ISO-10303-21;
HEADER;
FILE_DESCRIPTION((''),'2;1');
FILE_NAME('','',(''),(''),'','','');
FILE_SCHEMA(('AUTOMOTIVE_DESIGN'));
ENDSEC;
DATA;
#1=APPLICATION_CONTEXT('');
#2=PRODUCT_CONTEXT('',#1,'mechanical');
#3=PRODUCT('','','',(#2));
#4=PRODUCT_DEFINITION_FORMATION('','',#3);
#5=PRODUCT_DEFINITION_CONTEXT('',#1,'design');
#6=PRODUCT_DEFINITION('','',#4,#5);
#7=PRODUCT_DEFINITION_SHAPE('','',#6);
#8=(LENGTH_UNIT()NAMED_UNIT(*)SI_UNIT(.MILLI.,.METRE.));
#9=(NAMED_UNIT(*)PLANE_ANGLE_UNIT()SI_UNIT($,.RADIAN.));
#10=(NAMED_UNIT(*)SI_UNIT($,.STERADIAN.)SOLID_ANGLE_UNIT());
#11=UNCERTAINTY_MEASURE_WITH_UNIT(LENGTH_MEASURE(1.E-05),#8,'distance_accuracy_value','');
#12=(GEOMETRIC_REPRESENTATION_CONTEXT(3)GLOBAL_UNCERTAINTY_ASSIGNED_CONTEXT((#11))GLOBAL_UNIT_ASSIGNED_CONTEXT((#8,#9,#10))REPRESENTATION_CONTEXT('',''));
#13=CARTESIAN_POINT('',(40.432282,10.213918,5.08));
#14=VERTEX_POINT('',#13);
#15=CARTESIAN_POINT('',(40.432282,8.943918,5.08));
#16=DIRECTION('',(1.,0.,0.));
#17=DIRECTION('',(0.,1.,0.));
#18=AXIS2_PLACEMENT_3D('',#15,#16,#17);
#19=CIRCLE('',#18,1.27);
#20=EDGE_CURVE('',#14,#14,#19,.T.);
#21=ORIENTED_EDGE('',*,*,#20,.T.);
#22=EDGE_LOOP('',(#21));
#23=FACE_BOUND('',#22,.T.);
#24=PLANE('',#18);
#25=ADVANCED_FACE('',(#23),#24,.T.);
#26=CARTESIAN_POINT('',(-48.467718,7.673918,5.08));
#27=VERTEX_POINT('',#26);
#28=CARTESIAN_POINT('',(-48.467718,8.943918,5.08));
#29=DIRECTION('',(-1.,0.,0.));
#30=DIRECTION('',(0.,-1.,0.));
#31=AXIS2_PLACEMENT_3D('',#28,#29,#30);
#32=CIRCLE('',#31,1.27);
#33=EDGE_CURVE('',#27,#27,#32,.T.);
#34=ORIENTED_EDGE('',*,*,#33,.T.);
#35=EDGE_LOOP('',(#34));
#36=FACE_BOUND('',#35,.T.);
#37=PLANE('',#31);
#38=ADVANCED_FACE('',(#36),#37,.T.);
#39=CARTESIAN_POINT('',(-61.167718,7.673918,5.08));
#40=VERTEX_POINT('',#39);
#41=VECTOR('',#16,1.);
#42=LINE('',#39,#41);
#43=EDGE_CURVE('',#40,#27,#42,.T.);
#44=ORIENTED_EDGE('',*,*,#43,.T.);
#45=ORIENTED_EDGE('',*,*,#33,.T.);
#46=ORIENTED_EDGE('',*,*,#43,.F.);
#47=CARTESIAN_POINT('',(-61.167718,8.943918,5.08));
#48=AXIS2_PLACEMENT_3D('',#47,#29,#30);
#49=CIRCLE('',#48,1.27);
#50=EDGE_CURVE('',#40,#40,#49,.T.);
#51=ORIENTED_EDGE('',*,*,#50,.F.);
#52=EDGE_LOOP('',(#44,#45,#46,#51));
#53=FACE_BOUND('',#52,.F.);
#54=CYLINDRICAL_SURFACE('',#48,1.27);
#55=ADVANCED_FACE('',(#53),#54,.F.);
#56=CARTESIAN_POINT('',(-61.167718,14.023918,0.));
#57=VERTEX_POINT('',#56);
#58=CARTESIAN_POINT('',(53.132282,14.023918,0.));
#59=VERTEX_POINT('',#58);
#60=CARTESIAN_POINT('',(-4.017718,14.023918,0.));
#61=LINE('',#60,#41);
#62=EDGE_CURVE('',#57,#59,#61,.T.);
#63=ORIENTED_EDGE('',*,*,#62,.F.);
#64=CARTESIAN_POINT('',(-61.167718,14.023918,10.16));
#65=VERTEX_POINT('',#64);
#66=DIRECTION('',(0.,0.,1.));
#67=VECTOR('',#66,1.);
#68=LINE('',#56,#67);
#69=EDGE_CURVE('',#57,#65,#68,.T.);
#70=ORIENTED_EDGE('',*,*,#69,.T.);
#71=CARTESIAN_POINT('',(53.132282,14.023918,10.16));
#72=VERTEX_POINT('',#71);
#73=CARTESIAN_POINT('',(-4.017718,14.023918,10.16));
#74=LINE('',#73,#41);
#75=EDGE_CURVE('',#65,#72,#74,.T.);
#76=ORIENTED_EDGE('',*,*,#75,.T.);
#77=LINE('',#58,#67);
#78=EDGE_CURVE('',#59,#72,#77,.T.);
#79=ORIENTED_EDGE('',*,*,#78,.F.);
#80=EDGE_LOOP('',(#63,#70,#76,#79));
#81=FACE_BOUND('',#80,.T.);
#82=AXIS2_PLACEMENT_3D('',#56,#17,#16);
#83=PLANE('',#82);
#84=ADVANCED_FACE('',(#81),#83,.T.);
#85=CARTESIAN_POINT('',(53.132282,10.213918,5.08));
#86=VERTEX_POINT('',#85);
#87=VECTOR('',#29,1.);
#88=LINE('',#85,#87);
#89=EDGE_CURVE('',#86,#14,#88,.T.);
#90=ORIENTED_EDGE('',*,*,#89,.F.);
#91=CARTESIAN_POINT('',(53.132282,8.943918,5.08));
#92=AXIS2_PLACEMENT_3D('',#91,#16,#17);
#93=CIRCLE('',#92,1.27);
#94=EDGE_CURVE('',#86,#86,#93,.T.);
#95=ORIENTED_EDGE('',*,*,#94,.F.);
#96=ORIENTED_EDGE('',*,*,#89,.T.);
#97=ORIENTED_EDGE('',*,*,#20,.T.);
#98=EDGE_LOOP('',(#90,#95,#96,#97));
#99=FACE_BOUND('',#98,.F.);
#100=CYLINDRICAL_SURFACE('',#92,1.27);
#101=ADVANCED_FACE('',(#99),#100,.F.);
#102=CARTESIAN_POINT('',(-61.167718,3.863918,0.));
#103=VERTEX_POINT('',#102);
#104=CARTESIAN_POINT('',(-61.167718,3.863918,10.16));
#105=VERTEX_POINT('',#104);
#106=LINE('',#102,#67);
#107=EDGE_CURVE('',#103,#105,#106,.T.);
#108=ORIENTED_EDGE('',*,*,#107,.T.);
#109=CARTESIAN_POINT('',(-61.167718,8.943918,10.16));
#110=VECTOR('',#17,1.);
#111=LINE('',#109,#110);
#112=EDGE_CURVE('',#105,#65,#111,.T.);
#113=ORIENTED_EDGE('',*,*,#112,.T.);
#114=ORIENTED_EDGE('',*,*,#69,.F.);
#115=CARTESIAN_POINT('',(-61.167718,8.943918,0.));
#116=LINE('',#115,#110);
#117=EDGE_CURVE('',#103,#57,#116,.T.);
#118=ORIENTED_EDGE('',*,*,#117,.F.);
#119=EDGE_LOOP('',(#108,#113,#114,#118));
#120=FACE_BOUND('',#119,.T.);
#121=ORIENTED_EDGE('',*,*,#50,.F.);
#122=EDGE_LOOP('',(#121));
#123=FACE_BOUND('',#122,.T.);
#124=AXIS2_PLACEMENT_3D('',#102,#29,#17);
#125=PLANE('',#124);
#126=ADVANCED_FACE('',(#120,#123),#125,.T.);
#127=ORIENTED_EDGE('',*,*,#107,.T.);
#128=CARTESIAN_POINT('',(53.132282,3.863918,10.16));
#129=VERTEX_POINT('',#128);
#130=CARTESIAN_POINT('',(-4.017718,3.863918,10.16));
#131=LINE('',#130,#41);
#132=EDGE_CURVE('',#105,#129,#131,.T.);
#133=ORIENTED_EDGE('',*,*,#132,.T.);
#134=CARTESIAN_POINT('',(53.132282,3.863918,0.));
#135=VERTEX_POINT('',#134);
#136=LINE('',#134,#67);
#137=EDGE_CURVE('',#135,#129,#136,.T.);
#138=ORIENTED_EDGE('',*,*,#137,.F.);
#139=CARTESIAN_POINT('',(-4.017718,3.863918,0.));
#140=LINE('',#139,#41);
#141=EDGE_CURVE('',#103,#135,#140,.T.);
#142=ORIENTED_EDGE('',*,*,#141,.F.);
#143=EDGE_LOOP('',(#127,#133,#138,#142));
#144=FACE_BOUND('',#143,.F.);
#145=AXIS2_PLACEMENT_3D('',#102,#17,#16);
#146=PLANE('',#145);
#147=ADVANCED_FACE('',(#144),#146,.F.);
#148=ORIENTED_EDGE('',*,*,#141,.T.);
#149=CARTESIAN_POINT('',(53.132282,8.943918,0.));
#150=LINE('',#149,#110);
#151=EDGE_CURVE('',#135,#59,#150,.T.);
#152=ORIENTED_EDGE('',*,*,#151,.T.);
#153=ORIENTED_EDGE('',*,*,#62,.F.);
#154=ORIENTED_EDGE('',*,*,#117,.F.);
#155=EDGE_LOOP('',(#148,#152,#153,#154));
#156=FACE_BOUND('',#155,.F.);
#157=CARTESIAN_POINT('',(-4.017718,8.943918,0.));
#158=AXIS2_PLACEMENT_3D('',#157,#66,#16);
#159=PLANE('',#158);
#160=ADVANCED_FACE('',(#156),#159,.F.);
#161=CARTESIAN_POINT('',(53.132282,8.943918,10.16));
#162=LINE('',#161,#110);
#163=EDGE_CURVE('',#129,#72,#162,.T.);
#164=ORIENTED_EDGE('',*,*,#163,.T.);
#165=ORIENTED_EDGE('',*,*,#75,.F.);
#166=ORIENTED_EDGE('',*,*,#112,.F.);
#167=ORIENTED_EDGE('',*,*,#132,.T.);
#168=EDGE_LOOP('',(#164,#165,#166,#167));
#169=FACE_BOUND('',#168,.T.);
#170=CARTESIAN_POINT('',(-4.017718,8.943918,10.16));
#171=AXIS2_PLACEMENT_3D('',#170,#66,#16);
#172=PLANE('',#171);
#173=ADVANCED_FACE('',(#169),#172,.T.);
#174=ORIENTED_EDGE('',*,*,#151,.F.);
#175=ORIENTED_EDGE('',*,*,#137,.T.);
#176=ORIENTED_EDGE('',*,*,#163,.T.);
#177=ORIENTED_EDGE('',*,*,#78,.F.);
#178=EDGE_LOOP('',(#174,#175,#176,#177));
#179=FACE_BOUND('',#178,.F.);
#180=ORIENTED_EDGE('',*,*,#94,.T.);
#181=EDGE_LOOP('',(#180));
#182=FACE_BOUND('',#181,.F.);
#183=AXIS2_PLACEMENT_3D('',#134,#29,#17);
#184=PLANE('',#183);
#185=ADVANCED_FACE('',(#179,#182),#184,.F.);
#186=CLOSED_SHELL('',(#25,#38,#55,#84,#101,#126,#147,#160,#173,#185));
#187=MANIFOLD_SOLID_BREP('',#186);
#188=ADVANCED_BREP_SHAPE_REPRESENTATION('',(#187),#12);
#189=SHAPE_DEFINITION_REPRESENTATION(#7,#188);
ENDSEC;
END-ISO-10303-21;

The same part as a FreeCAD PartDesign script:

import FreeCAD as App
import Part
import Sketcher
from FreeCAD import Vector
Q = App.Units.Quantity

doc = App.newDocument("Part")
body = doc.addObject("PartDesign::Body", "Body")

# Sketch on XY plane
sketch1 = doc.addObject("Sketcher::SketchObject", "Sketch")
body.addObject(sketch1)
sketch1.AttachmentSupport = (doc.XY_Plane, [""])
sketch1.MapMode = "FlatFace"
sketch1.addGeometry([
    Part.LineSegment(Vector(-61, 14, 0), Vector(-61, 4, 0)),
    Part.LineSegment(Vector(-61, 4, 0), Vector(53, 4, 0)),
    Part.LineSegment(Vector(53, 4, 0), Vector(53, 14, 0)),
    Part.LineSegment(Vector(53, 14, 0), Vector(-61, 14, 0)),
], False)
sketch1.addConstraint([
    Sketcher.Constraint("Coincident", 0, 2, 1, 1),
    Sketcher.Constraint("Coincident", 1, 2, 2, 1),
    Sketcher.Constraint("Coincident", 2, 2, 3, 1),
    Sketcher.Constraint("Coincident", 3, 2, 0, 1),
    Sketcher.Constraint("Vertical", 0),
    Sketcher.Constraint("Horizontal", 1),
    Sketcher.Constraint("Vertical", 2),
    Sketcher.Constraint("Horizontal", 3),
    Sketcher.Constraint("DistanceX", 1, 1, 1, 2, Q("4.5 in")),
    Sketcher.Constraint("DistanceY", 0, 2, 0, 1, Q("0.4 in")),
    Sketcher.Constraint("DistanceY", -1, 1, 0, 2, 3.863918),
    Sketcher.Constraint("DistanceX", -1, 1, 1, 2, 53.132282),
])
pad1 = doc.addObject("PartDesign::Pad", "Pad")
body.addObject(pad1)
pad1.Profile = sketch1
pad1.Length = Q("0.4 in")

# Sketch on YZ plane
sketch2 = doc.addObject("Sketcher::SketchObject", "Sketch001")
body.addObject(sketch2)
sketch2.AttachmentSupport = (doc.YZ_Plane, [""])
sketch2.MapMode = "FlatFace"
sketch2.AttachmentOffset = App.Placement(Vector(0, 0, 53.132282), App.Rotation())
sketch2.addGeometry(Part.Circle(Vector(8.9, 5.1, 0), Vector(0, 0, 1), 1.3), False)
sketch2.addConstraint([
    Sketcher.Constraint("Diameter", 0, Q("0.1 in")),
    Sketcher.Constraint("DistanceY", -1, 1, 0, 3, Q("0.2 in")),
    Sketcher.Constraint("DistanceX", -1, 1, 0, 3, 8.943918),
])
pocket1 = doc.addObject("PartDesign::Pocket", "Pocket")
body.addObject(pocket1)
pocket1.Profile = sketch2
pocket1.Length = Q("0.5 in")

# Sketch on YZ plane
sketch3 = doc.addObject("Sketcher::SketchObject", "Sketch002")
body.addObject(sketch3)
sketch3.AttachmentSupport = (doc.YZ_Plane, [""])
sketch3.MapMode = "FlatFace"
sketch3.AttachmentOffset = App.Placement(Vector(0, 0, -61.167718), App.Rotation())
sketch3.addGeometry(Part.Circle(Vector(8.9, 5.1, 0), Vector(0, 0, 1), 1.3), False)
sketch3.addConstraint([
    Sketcher.Constraint("Diameter", 0, Q("0.1 in")),
    Sketcher.Constraint("DistanceY", -1, 1, 0, 3, Q("0.2 in")),
    Sketcher.Constraint("DistanceX", -1, 1, 0, 3, 8.943918),
])
pocket2 = doc.addObject("PartDesign::Pocket", "Pocket001")
body.addObject(pocket2)
pocket2.Profile = sketch3
pocket2.Length = Q("0.5 in")
pocket2.Reversed = True

doc.recompute()
